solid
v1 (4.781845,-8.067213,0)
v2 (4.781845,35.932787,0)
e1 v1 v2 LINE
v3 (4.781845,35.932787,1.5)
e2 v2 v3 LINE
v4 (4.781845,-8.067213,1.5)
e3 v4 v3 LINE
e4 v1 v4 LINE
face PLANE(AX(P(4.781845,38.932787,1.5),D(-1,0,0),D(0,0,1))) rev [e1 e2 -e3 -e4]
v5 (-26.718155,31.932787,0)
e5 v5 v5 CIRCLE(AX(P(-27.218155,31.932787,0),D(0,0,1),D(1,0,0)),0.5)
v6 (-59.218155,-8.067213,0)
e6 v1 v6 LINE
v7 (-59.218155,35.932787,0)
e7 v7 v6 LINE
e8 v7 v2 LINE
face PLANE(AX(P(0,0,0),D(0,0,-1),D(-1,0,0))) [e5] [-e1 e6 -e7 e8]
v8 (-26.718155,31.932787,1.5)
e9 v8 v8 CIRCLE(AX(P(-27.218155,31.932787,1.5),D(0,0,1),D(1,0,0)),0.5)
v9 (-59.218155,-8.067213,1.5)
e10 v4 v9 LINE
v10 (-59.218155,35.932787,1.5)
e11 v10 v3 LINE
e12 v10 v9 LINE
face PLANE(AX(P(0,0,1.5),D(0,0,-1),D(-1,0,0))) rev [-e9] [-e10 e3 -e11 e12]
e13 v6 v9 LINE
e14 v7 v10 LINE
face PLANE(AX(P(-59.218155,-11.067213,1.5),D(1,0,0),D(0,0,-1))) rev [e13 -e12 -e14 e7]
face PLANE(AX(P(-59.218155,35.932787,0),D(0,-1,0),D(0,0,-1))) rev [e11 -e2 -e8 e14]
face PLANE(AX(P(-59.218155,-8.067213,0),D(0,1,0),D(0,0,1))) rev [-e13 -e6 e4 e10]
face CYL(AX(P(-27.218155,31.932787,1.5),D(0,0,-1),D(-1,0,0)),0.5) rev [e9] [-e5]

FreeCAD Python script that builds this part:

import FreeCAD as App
import Part
import Sketcher

V = App.Vector


def add_polygon(sketch, points):
    """Adds a closed chain of lines whose ends are joined by coincident constraints."""
    first, n = sketch.GeometryCount, len(points)
    for a, b in zip(points, points[1:] + points[:1]):
        sketch.addGeometry(Part.LineSegment(App.Vector(*a, 0), App.Vector(*b, 0)), False)
    for i in range(n):
        sketch.addConstraint(Sketcher.Constraint("Coincident", first + i, 2, first + (i + 1) % n, 1))

doc = App.newDocument("Part")
params = doc.addObject("Spreadsheet::Sheet", "Params")
for row, (alias, value) in enumerate([
    ("sketch1_diameter", "1 mm"),
    ("sketch1_width", "64 mm"),
    ("sketch1_height", "50 mm"),
    ("pad1_length", "1.5 mm"),
    ("sketch2_width", "64 mm"),
    ("sketch2_height", "3 mm"),
    ("pocket1_length", "1.5 mm"),
], start=1):
    params.set(f"A{row}", alias)
    params.set(f"B{row}", "=" + value)
    params.setAlias(f"B{row}", alias)

body = doc.addObject("PartDesign::Body", "Body")

# Sketch on XY plane
sketch1 = body.newObject("Sketcher::SketchObject", "Sketch")
sketch1.AttachmentSupport = (doc.getObject("XY_Plane"), [""])
sketch1.MapMode = "FlatFace"
add_polygon(sketch1, [(-59.2, 38.9), (-59.2, -11.1), (4.8, -11.1), (4.8, 38.9)])  # lines 0-3
sketch1.addGeometry(Part.Circle(V(-27.2, 31.9, 0), V(0, 0, 1), 0.5), False)  # 4
sketch1.addConstraint([
    Sketcher.Constraint("Vertical", 0),
    Sketcher.Constraint("Horizontal", 1),
    Sketcher.Constraint("Vertical", 2),
    Sketcher.Constraint("Horizontal", 3),
    Sketcher.Constraint("Diameter", 4, 1.0),
    Sketcher.Constraint("DistanceX", 1, 1, 1, 2, 64.0),
    Sketcher.Constraint("DistanceY", 0, 2, 0, 1, 50.0),
    Sketcher.Constraint("DistanceX", 0, 2, 4, 3, 32.0),
    Sketcher.Constraint("DistanceY", 0, 2, 4, 3, 43.0),
    Sketcher.Constraint("DistanceX", 4, 3, -1, 1, 27.218155),
    Sketcher.Constraint("DistanceY", -1, 1, 4, 3, 31.932787),
])
sketch1.setExpression("Constraints[8]", "Params.sketch1_diameter")
sketch1.setExpression("Constraints[9]", "Params.sketch1_width")
sketch1.setExpression("Constraints[10]", "Params.sketch1_height")
pad1 = body.newObject("PartDesign::Pad", "Pad")
pad1.Profile = sketch1
pad1.setExpression("Length", "Params.pad1_length")

# Sketch on XY plane
sketch2 = body.newObject("Sketcher::SketchObject", "Sketch001")
sketch2.AttachmentSupport = (doc.getObject("XY_Plane"), [""])
sketch2.MapMode = "FlatFace"
sketch2.AttachmentOffset = App.Placement(V(0, 0, 1.5), App.Rotation())
add_polygon(sketch2, [(-59.2, -8.1), (-59.2, -11.1), (4.8, -11.1), (4.8, -8.1)])  # lines 0-3
add_polygon(sketch2, [(-59.2, 38.9), (-59.2, 35.9), (4.8, 35.9), (4.8, 38.9)])  # lines 4-7
sketch2.addConstraint([
    Sketcher.Constraint("Vertical", 0),
    Sketcher.Constraint("Horizontal", 1),
    Sketcher.Constraint("Vertical", 2),
    Sketcher.Constraint("Horizontal", 3),
    Sketcher.Constraint("Vertical", 4),
    Sketcher.Constraint("Horizontal", 5),
    Sketcher.Constraint("Vertical", 6),
    Sketcher.Constraint("Horizontal", 7),
    Sketcher.Constraint("Vertical", 3, 2, 4, 2),
    Sketcher.Constraint("Vertical", 2, 2, 5, 2),
    Sketcher.Constraint("Equal", 2, 4),
    Sketcher.Constraint("DistanceX", 1, 1, 1, 2, 64.0),
    Sketcher.Constraint("DistanceY", 0, 2, 0, 1, 3.0),
    Sketcher.Constraint("DistanceY", 3, 2, 4, 2, 44.0),
    Sketcher.Constraint("DistanceX", 0, 2, -1, 1, 59.218155),
    Sketcher.Constraint("DistanceY", 0, 2, -1, 1, 11.067213),
])
sketch2.setExpression("Constraints[19]", "Params.sketch2_width")
sketch2.setExpression("Constraints[20]", "Params.sketch2_height")
pocket1 = body.newObject("PartDesign::Pocket", "Pocket")
pocket1.Profile = sketch2
pocket1.setExpression("Length", "Params.pocket1_length")

doc.recompute()
